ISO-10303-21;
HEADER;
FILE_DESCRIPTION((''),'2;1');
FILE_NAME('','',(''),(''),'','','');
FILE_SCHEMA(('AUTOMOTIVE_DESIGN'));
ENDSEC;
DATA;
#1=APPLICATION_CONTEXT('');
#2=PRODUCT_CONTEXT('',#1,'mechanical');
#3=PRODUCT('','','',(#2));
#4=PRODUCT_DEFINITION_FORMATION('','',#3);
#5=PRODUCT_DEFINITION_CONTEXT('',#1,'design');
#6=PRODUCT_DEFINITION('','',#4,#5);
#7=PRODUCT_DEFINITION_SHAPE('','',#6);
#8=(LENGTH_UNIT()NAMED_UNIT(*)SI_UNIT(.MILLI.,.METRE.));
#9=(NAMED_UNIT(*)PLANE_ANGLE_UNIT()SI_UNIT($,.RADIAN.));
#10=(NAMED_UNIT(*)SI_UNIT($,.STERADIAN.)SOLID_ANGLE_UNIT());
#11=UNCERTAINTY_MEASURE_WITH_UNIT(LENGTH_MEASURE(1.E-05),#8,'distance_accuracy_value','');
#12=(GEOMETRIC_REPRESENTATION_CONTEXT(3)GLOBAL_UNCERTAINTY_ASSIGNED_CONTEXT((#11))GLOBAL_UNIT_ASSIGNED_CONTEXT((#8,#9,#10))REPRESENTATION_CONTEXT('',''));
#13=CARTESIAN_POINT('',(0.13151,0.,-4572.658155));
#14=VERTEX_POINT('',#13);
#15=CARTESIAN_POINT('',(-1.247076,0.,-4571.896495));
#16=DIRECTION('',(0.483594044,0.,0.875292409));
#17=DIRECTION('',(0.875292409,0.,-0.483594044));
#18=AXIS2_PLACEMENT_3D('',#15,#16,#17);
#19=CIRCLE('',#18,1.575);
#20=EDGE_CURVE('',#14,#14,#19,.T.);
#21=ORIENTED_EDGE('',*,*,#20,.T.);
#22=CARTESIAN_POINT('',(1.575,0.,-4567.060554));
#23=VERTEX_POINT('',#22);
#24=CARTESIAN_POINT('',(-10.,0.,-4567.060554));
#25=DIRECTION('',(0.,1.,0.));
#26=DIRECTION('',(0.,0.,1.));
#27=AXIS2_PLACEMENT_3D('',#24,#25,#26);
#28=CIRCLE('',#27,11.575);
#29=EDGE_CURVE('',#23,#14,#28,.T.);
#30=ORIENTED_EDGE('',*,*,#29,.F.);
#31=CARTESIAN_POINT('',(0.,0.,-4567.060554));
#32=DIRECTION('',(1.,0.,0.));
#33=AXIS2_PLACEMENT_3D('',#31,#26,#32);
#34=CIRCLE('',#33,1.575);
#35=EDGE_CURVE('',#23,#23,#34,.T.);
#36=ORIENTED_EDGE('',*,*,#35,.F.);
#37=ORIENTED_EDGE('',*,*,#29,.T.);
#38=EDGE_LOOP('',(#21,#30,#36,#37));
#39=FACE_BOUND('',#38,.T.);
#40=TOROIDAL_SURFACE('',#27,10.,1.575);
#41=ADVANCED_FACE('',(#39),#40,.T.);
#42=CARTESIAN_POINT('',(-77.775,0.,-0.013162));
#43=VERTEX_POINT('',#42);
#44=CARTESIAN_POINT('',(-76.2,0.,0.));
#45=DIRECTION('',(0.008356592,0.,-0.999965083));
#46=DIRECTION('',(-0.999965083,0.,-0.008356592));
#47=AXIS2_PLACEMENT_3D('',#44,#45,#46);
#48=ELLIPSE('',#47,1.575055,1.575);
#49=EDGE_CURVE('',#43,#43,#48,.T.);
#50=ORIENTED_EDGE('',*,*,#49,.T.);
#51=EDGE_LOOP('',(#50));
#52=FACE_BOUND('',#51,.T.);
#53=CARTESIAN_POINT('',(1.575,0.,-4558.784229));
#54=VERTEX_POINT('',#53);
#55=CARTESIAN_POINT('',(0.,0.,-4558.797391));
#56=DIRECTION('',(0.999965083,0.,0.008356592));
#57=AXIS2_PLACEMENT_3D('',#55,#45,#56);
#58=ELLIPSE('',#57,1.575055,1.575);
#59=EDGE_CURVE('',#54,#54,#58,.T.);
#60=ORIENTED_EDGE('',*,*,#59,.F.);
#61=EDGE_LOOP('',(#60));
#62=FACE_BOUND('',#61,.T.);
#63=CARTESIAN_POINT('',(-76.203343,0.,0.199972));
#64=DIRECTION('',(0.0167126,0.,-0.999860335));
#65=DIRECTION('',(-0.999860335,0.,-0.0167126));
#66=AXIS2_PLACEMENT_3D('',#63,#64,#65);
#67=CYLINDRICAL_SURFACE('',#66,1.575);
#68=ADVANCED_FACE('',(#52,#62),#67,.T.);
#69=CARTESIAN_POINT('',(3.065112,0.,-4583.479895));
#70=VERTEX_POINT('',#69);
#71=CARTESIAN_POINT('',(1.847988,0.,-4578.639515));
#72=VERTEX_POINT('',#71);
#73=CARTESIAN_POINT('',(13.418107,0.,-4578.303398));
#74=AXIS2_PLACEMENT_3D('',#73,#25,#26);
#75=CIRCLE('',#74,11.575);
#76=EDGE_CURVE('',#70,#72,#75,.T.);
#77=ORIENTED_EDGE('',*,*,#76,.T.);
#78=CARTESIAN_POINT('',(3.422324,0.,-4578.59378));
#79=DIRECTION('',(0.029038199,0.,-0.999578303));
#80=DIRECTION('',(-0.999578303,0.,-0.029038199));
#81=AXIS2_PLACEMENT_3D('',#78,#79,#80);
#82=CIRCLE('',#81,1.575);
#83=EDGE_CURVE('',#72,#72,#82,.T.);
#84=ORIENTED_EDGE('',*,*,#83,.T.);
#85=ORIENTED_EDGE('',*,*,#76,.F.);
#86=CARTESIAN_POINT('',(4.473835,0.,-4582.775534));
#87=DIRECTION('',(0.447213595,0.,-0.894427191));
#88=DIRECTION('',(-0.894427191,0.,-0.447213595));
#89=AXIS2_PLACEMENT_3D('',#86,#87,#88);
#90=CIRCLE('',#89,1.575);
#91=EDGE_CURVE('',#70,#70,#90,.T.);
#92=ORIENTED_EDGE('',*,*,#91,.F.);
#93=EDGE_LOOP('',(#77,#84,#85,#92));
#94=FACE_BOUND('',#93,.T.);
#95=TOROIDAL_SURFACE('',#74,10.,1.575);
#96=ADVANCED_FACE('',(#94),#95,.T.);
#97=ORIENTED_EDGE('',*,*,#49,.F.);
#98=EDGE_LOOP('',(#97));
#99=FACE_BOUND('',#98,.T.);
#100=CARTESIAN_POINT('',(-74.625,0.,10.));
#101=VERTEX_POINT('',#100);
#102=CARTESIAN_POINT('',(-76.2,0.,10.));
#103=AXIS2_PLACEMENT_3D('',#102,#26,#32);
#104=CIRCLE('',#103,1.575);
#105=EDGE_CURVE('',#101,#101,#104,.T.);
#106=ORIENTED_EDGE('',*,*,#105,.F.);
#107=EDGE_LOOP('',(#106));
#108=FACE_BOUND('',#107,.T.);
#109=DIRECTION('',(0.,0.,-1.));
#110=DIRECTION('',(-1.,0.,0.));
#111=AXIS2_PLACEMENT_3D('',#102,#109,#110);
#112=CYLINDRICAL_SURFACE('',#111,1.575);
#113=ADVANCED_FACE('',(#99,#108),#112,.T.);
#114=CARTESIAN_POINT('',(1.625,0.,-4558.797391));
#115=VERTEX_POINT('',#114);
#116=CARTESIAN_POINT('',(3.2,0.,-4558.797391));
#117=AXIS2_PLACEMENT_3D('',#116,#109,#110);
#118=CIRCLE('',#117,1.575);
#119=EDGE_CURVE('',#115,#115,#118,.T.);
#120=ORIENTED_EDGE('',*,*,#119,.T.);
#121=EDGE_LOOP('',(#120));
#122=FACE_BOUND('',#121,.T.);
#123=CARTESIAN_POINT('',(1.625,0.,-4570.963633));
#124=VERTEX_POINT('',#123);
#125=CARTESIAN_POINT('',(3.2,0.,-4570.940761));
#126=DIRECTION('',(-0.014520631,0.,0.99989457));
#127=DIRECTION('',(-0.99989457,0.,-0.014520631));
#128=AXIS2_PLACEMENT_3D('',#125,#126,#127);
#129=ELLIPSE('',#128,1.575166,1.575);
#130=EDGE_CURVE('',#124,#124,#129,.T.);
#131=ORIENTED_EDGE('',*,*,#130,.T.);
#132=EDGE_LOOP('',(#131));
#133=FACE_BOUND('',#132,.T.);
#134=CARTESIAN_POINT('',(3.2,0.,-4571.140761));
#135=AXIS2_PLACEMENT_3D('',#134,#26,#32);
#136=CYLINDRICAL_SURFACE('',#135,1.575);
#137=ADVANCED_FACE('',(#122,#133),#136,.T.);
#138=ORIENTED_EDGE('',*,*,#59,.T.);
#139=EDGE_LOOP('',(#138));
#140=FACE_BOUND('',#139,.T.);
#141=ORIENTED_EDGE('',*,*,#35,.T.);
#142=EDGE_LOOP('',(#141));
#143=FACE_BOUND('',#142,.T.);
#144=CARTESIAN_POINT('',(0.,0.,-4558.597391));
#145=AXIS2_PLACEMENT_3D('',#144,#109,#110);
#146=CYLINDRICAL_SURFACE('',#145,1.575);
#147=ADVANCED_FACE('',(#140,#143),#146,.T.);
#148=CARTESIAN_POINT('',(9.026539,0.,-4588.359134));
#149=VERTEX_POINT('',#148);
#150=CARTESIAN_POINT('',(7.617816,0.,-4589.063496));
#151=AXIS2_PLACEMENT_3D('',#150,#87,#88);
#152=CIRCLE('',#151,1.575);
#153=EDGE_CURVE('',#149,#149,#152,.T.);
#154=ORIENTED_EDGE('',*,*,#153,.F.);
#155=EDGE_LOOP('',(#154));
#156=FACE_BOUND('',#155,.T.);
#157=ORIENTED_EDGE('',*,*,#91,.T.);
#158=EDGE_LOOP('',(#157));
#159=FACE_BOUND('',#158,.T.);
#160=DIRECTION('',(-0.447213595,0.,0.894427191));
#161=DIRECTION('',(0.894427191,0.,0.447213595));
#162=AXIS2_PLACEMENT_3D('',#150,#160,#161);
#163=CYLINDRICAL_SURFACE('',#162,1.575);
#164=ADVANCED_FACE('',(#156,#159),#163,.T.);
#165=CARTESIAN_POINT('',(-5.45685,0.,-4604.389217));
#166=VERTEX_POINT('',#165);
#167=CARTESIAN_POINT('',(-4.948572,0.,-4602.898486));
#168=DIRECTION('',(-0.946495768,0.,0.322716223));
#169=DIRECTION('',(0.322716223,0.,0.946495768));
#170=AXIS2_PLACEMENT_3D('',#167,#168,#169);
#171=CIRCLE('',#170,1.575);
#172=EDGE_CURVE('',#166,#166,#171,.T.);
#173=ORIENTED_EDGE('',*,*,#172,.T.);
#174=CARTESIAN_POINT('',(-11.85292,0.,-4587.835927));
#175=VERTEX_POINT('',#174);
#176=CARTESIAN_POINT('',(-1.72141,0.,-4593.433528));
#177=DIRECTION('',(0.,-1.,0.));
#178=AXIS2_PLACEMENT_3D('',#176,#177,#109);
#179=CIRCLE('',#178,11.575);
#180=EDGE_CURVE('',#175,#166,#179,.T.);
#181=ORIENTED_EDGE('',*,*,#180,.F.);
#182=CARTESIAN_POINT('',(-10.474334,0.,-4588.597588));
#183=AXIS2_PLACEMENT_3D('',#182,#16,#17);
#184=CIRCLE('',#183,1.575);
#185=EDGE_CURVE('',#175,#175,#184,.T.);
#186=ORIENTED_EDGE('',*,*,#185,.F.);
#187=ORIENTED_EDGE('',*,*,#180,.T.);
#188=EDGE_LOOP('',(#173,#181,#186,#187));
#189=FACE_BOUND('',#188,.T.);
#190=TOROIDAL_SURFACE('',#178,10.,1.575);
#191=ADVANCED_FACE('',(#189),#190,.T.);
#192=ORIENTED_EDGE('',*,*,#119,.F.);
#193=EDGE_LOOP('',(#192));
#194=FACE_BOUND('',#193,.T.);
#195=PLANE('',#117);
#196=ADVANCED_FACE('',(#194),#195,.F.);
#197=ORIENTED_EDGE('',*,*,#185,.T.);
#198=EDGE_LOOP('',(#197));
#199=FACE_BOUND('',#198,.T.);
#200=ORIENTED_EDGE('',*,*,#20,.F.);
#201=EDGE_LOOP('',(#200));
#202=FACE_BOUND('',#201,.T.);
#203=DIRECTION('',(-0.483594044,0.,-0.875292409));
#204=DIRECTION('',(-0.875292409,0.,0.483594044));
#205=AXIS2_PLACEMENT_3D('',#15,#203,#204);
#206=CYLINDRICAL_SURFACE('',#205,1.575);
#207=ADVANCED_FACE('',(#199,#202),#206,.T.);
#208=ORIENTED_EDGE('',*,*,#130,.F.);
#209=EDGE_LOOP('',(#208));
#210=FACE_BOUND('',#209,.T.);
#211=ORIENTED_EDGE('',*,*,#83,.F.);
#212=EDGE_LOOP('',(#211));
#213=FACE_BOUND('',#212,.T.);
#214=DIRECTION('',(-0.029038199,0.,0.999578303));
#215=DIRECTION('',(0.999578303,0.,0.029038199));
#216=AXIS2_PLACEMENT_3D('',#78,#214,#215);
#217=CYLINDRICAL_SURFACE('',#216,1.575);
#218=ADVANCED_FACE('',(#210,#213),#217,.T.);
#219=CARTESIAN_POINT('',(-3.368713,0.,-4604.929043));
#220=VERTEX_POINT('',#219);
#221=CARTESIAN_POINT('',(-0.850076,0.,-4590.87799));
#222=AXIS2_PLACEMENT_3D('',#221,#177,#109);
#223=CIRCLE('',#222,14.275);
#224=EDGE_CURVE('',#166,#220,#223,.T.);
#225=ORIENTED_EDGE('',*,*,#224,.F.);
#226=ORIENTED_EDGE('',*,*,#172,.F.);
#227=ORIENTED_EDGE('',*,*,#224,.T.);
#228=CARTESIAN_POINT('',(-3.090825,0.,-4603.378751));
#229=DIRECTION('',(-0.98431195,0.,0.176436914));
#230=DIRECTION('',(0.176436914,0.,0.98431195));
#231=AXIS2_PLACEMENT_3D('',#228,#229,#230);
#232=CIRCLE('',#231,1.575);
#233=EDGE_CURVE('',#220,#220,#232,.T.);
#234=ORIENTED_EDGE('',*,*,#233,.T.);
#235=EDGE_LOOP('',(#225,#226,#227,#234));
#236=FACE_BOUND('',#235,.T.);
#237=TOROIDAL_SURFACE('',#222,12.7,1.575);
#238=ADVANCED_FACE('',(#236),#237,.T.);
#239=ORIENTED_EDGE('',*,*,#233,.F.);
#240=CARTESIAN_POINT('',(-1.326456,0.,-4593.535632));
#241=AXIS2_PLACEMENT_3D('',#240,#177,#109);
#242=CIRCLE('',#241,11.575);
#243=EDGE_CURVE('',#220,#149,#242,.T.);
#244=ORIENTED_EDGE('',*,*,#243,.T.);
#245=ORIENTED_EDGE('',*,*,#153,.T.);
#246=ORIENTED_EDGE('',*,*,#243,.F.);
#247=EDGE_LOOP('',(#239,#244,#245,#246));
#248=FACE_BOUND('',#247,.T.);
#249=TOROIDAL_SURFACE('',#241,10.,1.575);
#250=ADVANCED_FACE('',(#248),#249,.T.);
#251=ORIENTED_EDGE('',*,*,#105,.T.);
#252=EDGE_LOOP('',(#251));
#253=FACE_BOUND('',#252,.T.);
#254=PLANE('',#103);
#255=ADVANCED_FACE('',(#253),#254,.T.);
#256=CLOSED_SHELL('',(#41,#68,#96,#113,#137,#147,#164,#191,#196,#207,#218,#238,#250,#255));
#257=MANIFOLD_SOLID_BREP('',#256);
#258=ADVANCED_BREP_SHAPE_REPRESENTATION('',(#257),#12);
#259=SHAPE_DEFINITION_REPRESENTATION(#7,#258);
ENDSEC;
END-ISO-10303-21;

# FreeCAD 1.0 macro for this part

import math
import FreeCAD as App
import Part
import Sketcher
Q = App.Units.Quantity

doc = App.newDocument("Part")
body = doc.addObject("PartDesign::Body", "Body")

sketch1 = body.newObject("Sketcher::SketchObject", "Sketch")
sketch1.AttachmentSupport = (doc.getObject("XY_Plane"), [""])
sketch1.MapMode = "FlatFace"
sketch1.AttachmentOffset = App.Placement(App.Vector(0, 0, 10), App.Rotation())
sketch1.addGeometry(Part.Circle(App.Vector(-76.2, 0, 0), App.Vector(0, 0, 1), 1.6), False)
sketch1.addConstraint([
    Sketcher.Constraint("PointOnObject", 0, 3, -1),
    Sketcher.Constraint("Diameter", 0, Q("3.15 mm")),
    Sketcher.Constraint("DistanceX", 0, 3, -1, 1, Q("76.2 mm")),
])

sketch2 = body.newObject("Sketcher::SketchObject", "Sketch001")
sketch2.AttachmentSupport = (doc.getObject("XZ_Plane"), [""])
sketch2.MapMode = "FlatFace"
sketch2.addGeometry([
    Part.LineSegment(App.Vector(3.2, -4558.8, 0), App.Vector(3.2, -4570.9, 0)),
    Part.LineSegment(App.Vector(3.2, -4570.9, 0), App.Vector(3.4, -4578.6, 0)),
    Part.ArcOfCircle(Part.Circle(App.Vector(13.4, -4578.3, 0), App.Vector(0, 0, 1), 10), math.radians(-178), math.radians(-153)),
    Part.LineSegment(App.Vector(4.5, -4582.8, 0), App.Vector(7.6, -4589.1, 0)),
    Part.ArcOfCircle(Part.Circle(App.Vector(-1.3, -4593.5, 0), App.Vector(0, 0, 1), 10), math.radians(-100), math.radians(27)),
    Part.ArcOfCircle(Part.Circle(App.Vector(-0.9, -4590.9, 0), App.Vector(0, 0, 1), 12.7), math.radians(-108.83), math.radians(-100.16)),
    Part.ArcOfCircle(Part.Circle(App.Vector(-1.7, -4593.4, 0), App.Vector(0, 0, 1), 10), math.radians(151), math.radians(251)),
    Part.LineSegment(App.Vector(-10.5, -4588.6, 0), App.Vector(-1.2, -4571.9, 0)),
    Part.ArcOfCircle(Part.Circle(App.Vector(-10, -4567.1, 0), App.Vector(0, 0, 1), 10), math.radians(-29), math.radians(0)),
    Part.LineSegment(App.Vector(0, -4567.1, 0), App.Vector(0, -4558.8, 0)),
    Part.LineSegment(App.Vector(0, -4558.8, 0), App.Vector(-76.2, 0, 0)),
    Part.LineSegment(App.Vector(-76.2, 0, 0), App.Vector(-76.2, 10, 0)),
], False)
sketch2.addConstraint([
    Sketcher.Constraint("Coincident", 0, 2, 1, 1),
    Sketcher.Constraint("Tangent", 1, 2, 2, 1),
    Sketcher.Constraint("Tangent", 2, 2, 3, 1),
    Sketcher.Constraint("Tangent", 3, 2, 4, 2),
    Sketcher.Constraint("Tangent", 4, 1, 5, 2),
    Sketcher.Constraint("Tangent", 5, 1, 6, 2),
    Sketcher.Constraint("Tangent", 6, 1, 7, 1),
    Sketcher.Constraint("Tangent", 7, 2, 8, 1),
    Sketcher.Constraint("Tangent", 8, 2, 9, 1),
    Sketcher.Constraint("Coincident", 9, 2, 10, 1),
    Sketcher.Constraint("Coincident", 10, 2, 11, 1),
    Sketcher.Constraint("Vertical", 0),
    Sketcher.Constraint("Vertical", 9),
    Sketcher.Constraint("Vertical", 11),
    Sketcher.Constraint("Equal", 2, 4),
    Sketcher.Constraint("Equal", 4, 6),
    Sketcher.Constraint("Equal", 6, 8),
    Sketcher.Constraint("PointOnObject", 8, 2, -2),
    Sketcher.Constraint("PointOnObject", 10, 2, -1),
    Sketcher.Constraint("Horizontal", 0, 1, 9, 2),
    Sketcher.Constraint("Radius", 2, Q("10 mm")),
    Sketcher.Constraint("Radius", 5, Q("12.7 mm")),
    Sketcher.Constraint("DistanceY", 11, 1, 11, 2, Q("10 mm")),
    Sketcher.Constraint("DistanceX", -1, 1, 0, 1, Q("3.2 mm")),
    Sketcher.Constraint("DistanceX", 10, 2, -1, 1, Q("76.2 mm")),
    Sketcher.Constraint("DistanceY", 0, 2, 0, 1, Q("12.14337 mm")),
    Sketcher.Constraint("DistanceY", 5, 3, 0, 1, Q("32.080599 mm")),
    Sketcher.Constraint("DistanceX", 5, 3, 1, 2, Q("4.2724 mm")),
    Sketcher.Constraint("DistanceY", 4, 3, 2, 2, Q("10.760098 mm")),
    Sketcher.Constraint("DistanceY", 5, 3, 6, 1, Q("2.280402 mm")),
    Sketcher.Constraint("DistanceY", 5, 1, 6, 1, Q("14.300898 mm")),
    Sketcher.Constraint("DistanceX", 7, 2, 1, 2, Q("4.6694 mm")),
    Sketcher.Constraint("DistanceY", 4, 3, -1, 1, Q("4593.535632 mm")),
    Sketcher.Constraint("DistanceY", 5, 3, -1, 1, Q("4590.87799 mm")),
])
doc.recompute()

additivepipe = body.newObject("PartDesign::AdditivePipe", "AdditivePipe")
additivepipe.Profile = sketch1
additivepipe.Spine = (sketch2, ["Edge1", "Edge2", "Edge3", "Edge4", "Edge5", "Edge6", "Edge7", "Edge8", "Edge9", "Edge10", "Edge11", "Edge12"])
additivepipe.Transition = "Right corner"

doc.recompute()
